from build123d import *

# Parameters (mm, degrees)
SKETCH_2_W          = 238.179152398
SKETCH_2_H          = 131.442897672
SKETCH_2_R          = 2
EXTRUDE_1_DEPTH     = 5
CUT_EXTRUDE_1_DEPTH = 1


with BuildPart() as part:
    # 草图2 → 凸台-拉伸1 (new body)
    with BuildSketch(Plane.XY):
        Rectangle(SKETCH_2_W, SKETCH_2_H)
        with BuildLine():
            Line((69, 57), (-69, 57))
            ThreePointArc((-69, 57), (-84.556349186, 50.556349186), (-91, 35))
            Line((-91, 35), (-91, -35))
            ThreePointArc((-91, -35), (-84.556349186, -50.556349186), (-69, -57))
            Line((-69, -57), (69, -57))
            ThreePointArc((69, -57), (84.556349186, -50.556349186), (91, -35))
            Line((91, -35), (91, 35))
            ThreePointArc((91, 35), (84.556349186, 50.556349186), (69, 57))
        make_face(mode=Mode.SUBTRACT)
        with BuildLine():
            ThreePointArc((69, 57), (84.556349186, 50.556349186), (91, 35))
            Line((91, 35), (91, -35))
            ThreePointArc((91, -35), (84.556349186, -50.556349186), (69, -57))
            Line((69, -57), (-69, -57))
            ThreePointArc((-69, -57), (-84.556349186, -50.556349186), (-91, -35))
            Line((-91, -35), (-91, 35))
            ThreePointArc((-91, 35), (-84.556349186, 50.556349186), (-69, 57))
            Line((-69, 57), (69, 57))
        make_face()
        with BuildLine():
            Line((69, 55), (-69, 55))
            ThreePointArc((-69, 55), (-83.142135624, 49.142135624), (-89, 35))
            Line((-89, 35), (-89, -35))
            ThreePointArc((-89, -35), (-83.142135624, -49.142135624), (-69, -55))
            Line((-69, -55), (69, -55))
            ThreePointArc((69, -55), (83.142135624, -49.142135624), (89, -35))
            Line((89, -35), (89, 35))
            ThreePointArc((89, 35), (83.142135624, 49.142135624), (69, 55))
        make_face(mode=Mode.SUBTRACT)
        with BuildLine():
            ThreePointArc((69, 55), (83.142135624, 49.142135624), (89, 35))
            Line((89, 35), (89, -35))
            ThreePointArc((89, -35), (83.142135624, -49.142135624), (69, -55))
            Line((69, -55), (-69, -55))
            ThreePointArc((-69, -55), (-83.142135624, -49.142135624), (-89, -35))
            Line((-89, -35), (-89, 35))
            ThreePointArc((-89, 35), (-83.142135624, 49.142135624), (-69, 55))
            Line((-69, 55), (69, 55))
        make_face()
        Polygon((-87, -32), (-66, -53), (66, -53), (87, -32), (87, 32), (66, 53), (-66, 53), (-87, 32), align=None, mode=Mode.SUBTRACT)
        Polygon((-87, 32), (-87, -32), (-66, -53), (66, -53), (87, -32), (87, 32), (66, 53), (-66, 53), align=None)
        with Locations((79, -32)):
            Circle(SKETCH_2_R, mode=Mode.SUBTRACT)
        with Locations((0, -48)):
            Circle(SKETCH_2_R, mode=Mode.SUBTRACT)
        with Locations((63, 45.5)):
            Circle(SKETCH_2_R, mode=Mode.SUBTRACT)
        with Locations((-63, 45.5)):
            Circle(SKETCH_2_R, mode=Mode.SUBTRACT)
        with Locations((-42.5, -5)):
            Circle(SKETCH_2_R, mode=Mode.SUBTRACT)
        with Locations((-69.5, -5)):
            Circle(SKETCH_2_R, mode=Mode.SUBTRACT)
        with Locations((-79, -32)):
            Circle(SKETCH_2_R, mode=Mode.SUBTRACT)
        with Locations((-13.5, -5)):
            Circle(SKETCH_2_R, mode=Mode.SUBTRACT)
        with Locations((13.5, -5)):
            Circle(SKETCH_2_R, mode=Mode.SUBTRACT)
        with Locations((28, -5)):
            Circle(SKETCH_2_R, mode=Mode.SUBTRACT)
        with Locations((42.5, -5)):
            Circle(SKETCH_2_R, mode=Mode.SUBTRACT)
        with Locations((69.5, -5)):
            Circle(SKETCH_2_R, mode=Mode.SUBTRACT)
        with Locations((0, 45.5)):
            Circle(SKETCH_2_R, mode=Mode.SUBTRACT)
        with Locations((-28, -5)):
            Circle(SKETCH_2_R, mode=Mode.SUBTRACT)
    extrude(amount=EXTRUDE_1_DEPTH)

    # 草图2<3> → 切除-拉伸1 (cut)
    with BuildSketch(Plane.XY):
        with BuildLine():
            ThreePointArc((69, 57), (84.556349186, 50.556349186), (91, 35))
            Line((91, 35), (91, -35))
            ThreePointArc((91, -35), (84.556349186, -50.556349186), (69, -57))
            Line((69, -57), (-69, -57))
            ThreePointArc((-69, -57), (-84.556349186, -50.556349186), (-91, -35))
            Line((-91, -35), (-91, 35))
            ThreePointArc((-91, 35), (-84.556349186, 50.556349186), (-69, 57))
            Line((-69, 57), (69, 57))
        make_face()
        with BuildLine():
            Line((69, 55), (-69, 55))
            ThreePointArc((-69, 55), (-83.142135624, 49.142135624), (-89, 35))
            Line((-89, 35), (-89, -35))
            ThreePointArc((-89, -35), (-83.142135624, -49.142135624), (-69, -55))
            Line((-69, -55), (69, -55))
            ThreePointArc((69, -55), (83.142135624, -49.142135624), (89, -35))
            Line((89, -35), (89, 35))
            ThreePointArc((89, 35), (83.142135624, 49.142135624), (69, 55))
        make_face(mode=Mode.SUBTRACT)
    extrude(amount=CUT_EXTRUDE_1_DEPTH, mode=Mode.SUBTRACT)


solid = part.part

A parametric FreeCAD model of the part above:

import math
import FreeCAD as App
import Part
import Sketcher
from FreeCAD import Vector
Q = App.Units.Quantity


def add_polygon(sketch, points):
    """Adds a closed chain of lines whose ends are joined by coincident constraints."""
    first, n = sketch.GeometryCount, len(points)
    for a, b in zip(points, points[1:] + points[:1]):
        sketch.addGeometry(Part.LineSegment(App.Vector(*a, 0), App.Vector(*b, 0)), False)
    for i in range(n):
        sketch.addConstraint(Sketcher.Constraint("Coincident", first + i, 2, first + (i + 1) % n, 1))

doc = App.newDocument("Part")
body = doc.addObject("PartDesign::Body", "Body")

# Sketch on XY plane
sketch1 = doc.addObject("Sketcher::SketchObject", "Sketch")
body.addObject(sketch1)
sketch1.AttachmentSupport = (doc.XY_Plane, [""])
sketch1.MapMode = "FlatFace"
add_polygon(sketch1, [(-119.1, 65.7), (-119.1, -65.7), (119.1, -65.7), (119.1, 65.7)])  # lines 0-3
sketch1.addGeometry(Part.Circle(Vector(-79, -32, 0), Vector(0, 0, 1), 2), False)  # 4
sketch1.addGeometry(Part.Circle(Vector(-69.5, -5, 0), Vector(0, 0, 1), 2), False)  # 5
sketch1.addGeometry(Part.Circle(Vector(-42.5, -5, 0), Vector(0, 0, 1), 2), False)  # 6
sketch1.addGeometry(Part.Circle(Vector(-28, -5, 0), Vector(0, 0, 1), 2), False)  # 7
sketch1.addGeometry(Part.Circle(Vector(-13.5, -5, 0), Vector(0, 0, 1), 2), False)  # 8
sketch1.addGeometry(Part.Circle(Vector(0, -48, 0), Vector(0, 0, 1), 2), False)  # 9
sketch1.addGeometry(Part.Circle(Vector(79, -32, 0), Vector(0, 0, 1), 2), False)  # 10
sketch1.addGeometry(Part.Circle(Vector(13.5, -5, 0), Vector(0, 0, 1), 2), False)  # 11
sketch1.addGeometry(Part.Circle(Vector(28, -5, 0), Vector(0, 0, 1), 2), False)  # 12
sketch1.addGeometry(Part.Circle(Vector(42.5, -5, 0), Vector(0, 0, 1), 2), False)  # 13
sketch1.addGeometry(Part.Circle(Vector(69.5, -5, 0), Vector(0, 0, 1), 2), False)  # 14
sketch1.addGeometry(Part.Circle(Vector(-63, 45.5, 0), Vector(0, 0, 1), 2), False)  # 15
sketch1.addGeometry(Part.Circle(Vector(0, 45.5, 0), Vector(0, 0, 1), 2), False)  # 16
sketch1.addGeometry(Part.Circle(Vector(63, 45.5, 0), Vector(0, 0, 1), 2), False)  # 17
sketch1.addConstraint([
    Sketcher.Constraint("Vertical", 0),
    Sketcher.Constraint("Horizontal", 1),
    Sketcher.Constraint("Vertical", 2),
    Sketcher.Constraint("Horizontal", 3),
    Sketcher.Constraint("Equal", 4, 5),
    Sketcher.Constraint("Equal", 5, 6),
    Sketcher.Constraint("Equal", 6, 7),
    Sketcher.Constraint("Equal", 7, 8),
    Sketcher.Constraint("Equal", 8, 9),
    Sketcher.Constraint("Equal", 9, 10),
    Sketcher.Constraint("Equal", 10, 11),
    Sketcher.Constraint("Equal", 11, 12),
    Sketcher.Constraint("Equal", 12, 13),
    Sketcher.Constraint("Equal", 13, 14),
    Sketcher.Constraint("Equal", 14, 15),
    Sketcher.Constraint("Equal", 15, 16),
    Sketcher.Constraint("Equal", 16, 17),
    Sketcher.Constraint("Symmetric", 0, 2, 2, 2, -1, 1),
    Sketcher.Constraint("Symmetric", 4, 3, 10, 3, -2),
    Sketcher.Constraint("Symmetric", 8, 3, 11, 3, -2),
    Sketcher.Constraint("Symmetric", 7, 3, 12, 3, -2),
    Sketcher.Constraint("Symmetric", 6, 3, 13, 3, -2),
    Sketcher.Constraint("Symmetric", 5, 3, 14, 3, -2),
    Sketcher.Constraint("Symmetric", 15, 3, 17, 3, -2),
    Sketcher.Constraint("PointOnObject", 9, 3, -2),
    Sketcher.Constraint("PointOnObject", 16, 3, -2),
    Sketcher.Constraint("Horizontal", 5, 3, 6, 3),
    Sketcher.Constraint("Horizontal", 6, 3, 7, 3),
    Sketcher.Constraint("Horizontal", 7, 3, 8, 3),
    Sketcher.Constraint("Horizontal", 15, 3, 16, 3),
    Sketcher.Constraint("Diameter", 4, Q("4 mm")),
    Sketcher.Constraint("DistanceX", 4, 3, -1, 1, Q("79 mm")),
    Sketcher.Constraint("DistanceY", 4, 3, -1, 1, Q("32 mm")),
    Sketcher.Constraint("DistanceY", 5, 3, -1, 1, Q("5 mm")),
    Sketcher.Constraint("DistanceX", 7, 3, -1, 1, Q("28 mm")),
    Sketcher.Constraint("DistanceY", 9, 3, -1, 1, Q("48 mm")),
    Sketcher.Constraint("DistanceX", 15, 3, -1, 1, Q("63 mm")),
    Sketcher.Constraint("DistanceX", 5, 3, 6, 3, Q("27 mm")),
    Sketcher.Constraint("DistanceX", 6, 3, 8, 3, Q("29 mm")),
    Sketcher.Constraint("DistanceX", 8, 3, 11, 3, Q("27 mm")),
    Sketcher.Constraint("DistanceY", -1, 1, 15, 3, Q("45.5 mm")),
    Sketcher.Constraint("DistanceX", 1, 1, 1, 2, Q("238.179152 mm")),
    Sketcher.Constraint("DistanceY", 0, 2, 0, 1, Q("131.442898 mm")),
])
pad1 = doc.addObject("PartDesign::Pad", "Pad")
body.addObject(pad1)
pad1.Profile = sketch1
pad1.Length = 5

# Sketch on XY plane
sketch2 = doc.addObject("Sketcher::SketchObject", "Sketch001")
body.addObject(sketch2)
sketch2.AttachmentSupport = (doc.XY_Plane, [""])
sketch2.MapMode = "FlatFace"
sketch2.addGeometry([
    Part.ArcOfCircle(Part.Circle(Vector(69, 35, 0), Vector(0, 0, 1), 22), math.radians(0), math.radians(90)),  # 0
    Part.LineSegment(Vector(69, 57, 0), Vector(-69, 57, 0)),  # 1
    Part.ArcOfCircle(Part.Circle(Vector(-69, 35, 0), Vector(0, 0, 1), 22), math.radians(90), math.radians(180)),  # 2
    Part.LineSegment(Vector(-91, 35, 0), Vector(-91, -35, 0)),  # 3
    Part.ArcOfCircle(Part.Circle(Vector(-69, -35, 0), Vector(0, 0, 1), 22), math.radians(180), math.radians(270)),  # 4
    Part.LineSegment(Vector(-69, -57, 0), Vector(69, -57, 0)),  # 5
    Part.ArcOfCircle(Part.Circle(Vector(69, -35, 0), Vector(0, 0, 1), 22), math.radians(-90), math.radians(0)),  # 6
    Part.LineSegment(Vector(91, -35, 0), Vector(91, 35, 0)),  # 7
    Part.ArcOfCircle(Part.Circle(Vector(69, 35, 0), Vector(0, 0, 1), 20), math.radians(0), math.radians(90)),  # 8
    Part.LineSegment(Vector(89, 35, 0), Vector(89, -35, 0)),  # 9
    Part.ArcOfCircle(Part.Circle(Vector(69, -35, 0), Vector(0, 0, 1), 20), math.radians(-90), math.radians(0)),  # 10
    Part.LineSegment(Vector(69, -55, 0), Vector(-69, -55, 0)),  # 11
    Part.ArcOfCircle(Part.Circle(Vector(-69, -35, 0), Vector(0, 0, 1), 20), math.radians(180), math.radians(270)),  # 12
    Part.LineSegment(Vector(-89, -35, 0), Vector(-89, 35, 0)),  # 13
    Part.ArcOfCircle(Part.Circle(Vector(-69, 35, 0), Vector(0, 0, 1), 20), math.radians(90), math.radians(180)),  # 14
    Part.LineSegment(Vector(-69, 55, 0), Vector(69, 55, 0)),  # 15
], False)
sketch2.addConstraint([
    Sketcher.Constraint("Tangent", 0, 2, 1, 1),
    Sketcher.Constraint("Tangent", 1, 2, 2, 1),
    Sketcher.Constraint("Tangent", 2, 2, 3, 1),
    Sketcher.Constraint("Tangent", 3, 2, 4, 1),
    Sketcher.Constraint("Tangent", 4, 2, 5, 1),
    Sketcher.Constraint("Tangent", 5, 2, 6, 1),
    Sketcher.Constraint("Tangent", 6, 2, 7, 1),
    Sketcher.Constraint("Tangent", 7, 2, 0, 1),
    Sketcher.Constraint("Tangent", 8, 1, 9, 1),
    Sketcher.Constraint("Tangent", 9, 2, 10, 2),
    Sketcher.Constraint("Tangent", 10, 1, 11, 1),
    Sketcher.Constraint("Tangent", 11, 2, 12, 2),
    Sketcher.Constraint("Tangent", 12, 1, 13, 1),
    Sketcher.Constraint("Tangent", 13, 2, 14, 2),
    Sketcher.Constraint("Tangent", 14, 1, 15, 1),
    Sketcher.Constraint("Tangent", 15, 2, 8, 2),
    Sketcher.Constraint("Horizontal", 1),
    Sketcher.Constraint("Vertical", 3),
    Sketcher.Constraint("Horizontal", 5),
    Sketcher.Constraint("Vertical", 7),
    Sketcher.Constraint("Vertical", 9),
    Sketcher.Constraint("Horizontal", 11),
    Sketcher.Constraint("Vertical", 13),
    Sketcher.Constraint("Horizontal", 15),
    Sketcher.Constraint("Coincident", 8, 3, 0, 3),
    Sketcher.Constraint("Coincident", 10, 3, 6, 3),
    Sketcher.Constraint("Coincident", 12, 3, 4, 3),
    Sketcher.Constraint("Equal", 0, 2),
    Sketcher.Constraint("Equal", 2, 4),
    Sketcher.Constraint("Equal", 4, 6),
    Sketcher.Constraint("Equal", 12, 14),
    Sketcher.Constraint("Symmetric", 0, 3, 4, 3, -1, 1),
    Sketcher.Constraint("Radius", 0, Q("22 mm")),
    Sketcher.Constraint("Radius", 8, Q("20 mm")),
    Sketcher.Constraint("DistanceX", 1, 2, 1, 1, Q("138 mm")),
    Sketcher.Constraint("DistanceY", 3, 2, 3, 1, Q("70 mm")),
])
pocket1 = doc.addObject("PartDesign::Pocket", "Pocket")
body.addObject(pocket1)
pocket1.Profile = sketch2
pocket1.Length = 1
pocket1.Reversed = True

doc.recompute()
